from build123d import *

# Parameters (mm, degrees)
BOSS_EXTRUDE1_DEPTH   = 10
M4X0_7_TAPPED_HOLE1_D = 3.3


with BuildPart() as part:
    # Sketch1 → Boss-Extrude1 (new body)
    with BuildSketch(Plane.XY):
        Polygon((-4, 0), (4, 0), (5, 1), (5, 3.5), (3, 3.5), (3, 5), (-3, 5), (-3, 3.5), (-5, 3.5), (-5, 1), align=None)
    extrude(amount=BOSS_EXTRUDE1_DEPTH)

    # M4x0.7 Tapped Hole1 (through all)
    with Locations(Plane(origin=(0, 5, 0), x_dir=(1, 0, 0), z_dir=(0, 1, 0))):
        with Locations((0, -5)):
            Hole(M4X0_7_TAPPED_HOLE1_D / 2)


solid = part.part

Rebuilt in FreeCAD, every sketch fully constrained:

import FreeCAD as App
import Part
import Sketcher
Q = App.Units.Quantity

doc = App.newDocument("Part")
body = doc.addObject("PartDesign::Body", "Body")

# Sketch on XY plane
sketch1 = doc.addObject("Sketcher::SketchObject", "Sketch")
body.addObject(sketch1)
sketch1.AttachmentSupport = (doc.XY_Plane, [""])
sketch1.MapMode = "FlatFace"
sketch1.addGeometry([
    Part.LineSegment(App.Vector(-4, 0, 0), App.Vector(4, 0, 0)),  # 0
    Part.LineSegment(App.Vector(4, 0, 0), App.Vector(5, 1, 0)),  # 1
    Part.LineSegment(App.Vector(5, 1, 0), App.Vector(5, 3.5, 0)),  # 2
    Part.LineSegment(App.Vector(5, 3.5, 0), App.Vector(3, 3.5, 0)),  # 3
    Part.LineSegment(App.Vector(3, 3.5, 0), App.Vector(3, 5, 0)),  # 4
    Part.LineSegment(App.Vector(3, 5, 0), App.Vector(-3, 5, 0)),  # 5
    Part.LineSegment(App.Vector(-3, 5, 0), App.Vector(-3, 3.5, 0)),  # 6
    Part.LineSegment(App.Vector(-3, 3.5, 0), App.Vector(-5, 3.5, 0)),  # 7
    Part.LineSegment(App.Vector(-5, 3.5, 0), App.Vector(-5, 1, 0)),  # 8
    Part.LineSegment(App.Vector(-5, 1, 0), App.Vector(-4, 0, 0)),  # 9
], False)
sketch1.addConstraint([
    Sketcher.Constraint("Coincident", 0, 2, 1, 1),
    Sketcher.Constraint("Coincident", 1, 2, 2, 1),
    Sketcher.Constraint("Coincident", 2, 2, 3, 1),
    Sketcher.Constraint("Coincident", 3, 2, 4, 1),
    Sketcher.Constraint("Coincident", 4, 2, 5, 1),
    Sketcher.Constraint("Coincident", 5, 2, 6, 1),
    Sketcher.Constraint("Coincident", 6, 2, 7, 1),
    Sketcher.Constraint("Coincident", 7, 2, 8, 1),
    Sketcher.Constraint("Coincident", 8, 2, 9, 1),
    Sketcher.Constraint("Coincident", 9, 2, 0, 1),
    Sketcher.Constraint("Horizontal", 0),
    Sketcher.Constraint("Vertical", 2),
    Sketcher.Constraint("Horizontal", 3),
    Sketcher.Constraint("Vertical", 4),
    Sketcher.Constraint("Horizontal", 5),
    Sketcher.Constraint("Vertical", 6),
    Sketcher.Constraint("Horizontal", 7),
    Sketcher.Constraint("Vertical", 8),
    Sketcher.Constraint("Symmetric", 0, 2, 9, 2, -1, 1),
    Sketcher.Constraint("Symmetric", 3, 2, 6, 2, -2),
    Sketcher.Constraint("Symmetric", 1, 2, 8, 2, -2),
    Sketcher.Constraint("Perpendicular", 1, 9),
    Sketcher.Constraint("DistanceX", 0, 1, 0, 2, Q("8 mm")),
    Sketcher.Constraint("DistanceX", 3, 2, 3, 1, Q("2 mm")),
    Sketcher.Constraint("DistanceX", 5, 2, 5, 1, Q("6 mm")),
    Sketcher.Constraint("DistanceY", 2, 1, 2, 2, Q("2.5 mm")),
    Sketcher.Constraint("DistanceY", 4, 1, 4, 2, Q("1.5 mm")),
])
pad1 = doc.addObject("PartDesign::Pad", "Pad")
body.addObject(pad1)
pad1.Profile = sketch1
pad1.Length = 10

# Sketch on XZ plane
sketch2 = doc.addObject("Sketcher::SketchObject", "Sketch001")
body.addObject(sketch2)
sketch2.AttachmentSupport = (doc.XZ_Plane, [""])
sketch2.MapMode = "FlatFace"
sketch2.AttachmentOffset = App.Placement(App.Vector(0, 0, -5), App.Rotation())
sketch2.addGeometry(Part.Circle(App.Vector(0, 5, 0), App.Vector(0, 0, 1), 1.65), False)
sketch2.addConstraint([
    Sketcher.Constraint("PointOnObject", 0, 3, -2),
    Sketcher.Constraint("Diameter", 0, Q("3.3 mm")),
    Sketcher.Constraint("DistanceY", -1, 1, 0, 3, Q("5 mm")),
])
doc.recompute()
hole = doc.addObject("PartDesign::Hole", "Hole")
body.addObject(hole)
hole.Profile = sketch2
hole.ThreadType = "None"
hole.Diameter = 3.3
hole.DepthType = "ThroughAll"
hole.Reversed = True

doc.recompute()
